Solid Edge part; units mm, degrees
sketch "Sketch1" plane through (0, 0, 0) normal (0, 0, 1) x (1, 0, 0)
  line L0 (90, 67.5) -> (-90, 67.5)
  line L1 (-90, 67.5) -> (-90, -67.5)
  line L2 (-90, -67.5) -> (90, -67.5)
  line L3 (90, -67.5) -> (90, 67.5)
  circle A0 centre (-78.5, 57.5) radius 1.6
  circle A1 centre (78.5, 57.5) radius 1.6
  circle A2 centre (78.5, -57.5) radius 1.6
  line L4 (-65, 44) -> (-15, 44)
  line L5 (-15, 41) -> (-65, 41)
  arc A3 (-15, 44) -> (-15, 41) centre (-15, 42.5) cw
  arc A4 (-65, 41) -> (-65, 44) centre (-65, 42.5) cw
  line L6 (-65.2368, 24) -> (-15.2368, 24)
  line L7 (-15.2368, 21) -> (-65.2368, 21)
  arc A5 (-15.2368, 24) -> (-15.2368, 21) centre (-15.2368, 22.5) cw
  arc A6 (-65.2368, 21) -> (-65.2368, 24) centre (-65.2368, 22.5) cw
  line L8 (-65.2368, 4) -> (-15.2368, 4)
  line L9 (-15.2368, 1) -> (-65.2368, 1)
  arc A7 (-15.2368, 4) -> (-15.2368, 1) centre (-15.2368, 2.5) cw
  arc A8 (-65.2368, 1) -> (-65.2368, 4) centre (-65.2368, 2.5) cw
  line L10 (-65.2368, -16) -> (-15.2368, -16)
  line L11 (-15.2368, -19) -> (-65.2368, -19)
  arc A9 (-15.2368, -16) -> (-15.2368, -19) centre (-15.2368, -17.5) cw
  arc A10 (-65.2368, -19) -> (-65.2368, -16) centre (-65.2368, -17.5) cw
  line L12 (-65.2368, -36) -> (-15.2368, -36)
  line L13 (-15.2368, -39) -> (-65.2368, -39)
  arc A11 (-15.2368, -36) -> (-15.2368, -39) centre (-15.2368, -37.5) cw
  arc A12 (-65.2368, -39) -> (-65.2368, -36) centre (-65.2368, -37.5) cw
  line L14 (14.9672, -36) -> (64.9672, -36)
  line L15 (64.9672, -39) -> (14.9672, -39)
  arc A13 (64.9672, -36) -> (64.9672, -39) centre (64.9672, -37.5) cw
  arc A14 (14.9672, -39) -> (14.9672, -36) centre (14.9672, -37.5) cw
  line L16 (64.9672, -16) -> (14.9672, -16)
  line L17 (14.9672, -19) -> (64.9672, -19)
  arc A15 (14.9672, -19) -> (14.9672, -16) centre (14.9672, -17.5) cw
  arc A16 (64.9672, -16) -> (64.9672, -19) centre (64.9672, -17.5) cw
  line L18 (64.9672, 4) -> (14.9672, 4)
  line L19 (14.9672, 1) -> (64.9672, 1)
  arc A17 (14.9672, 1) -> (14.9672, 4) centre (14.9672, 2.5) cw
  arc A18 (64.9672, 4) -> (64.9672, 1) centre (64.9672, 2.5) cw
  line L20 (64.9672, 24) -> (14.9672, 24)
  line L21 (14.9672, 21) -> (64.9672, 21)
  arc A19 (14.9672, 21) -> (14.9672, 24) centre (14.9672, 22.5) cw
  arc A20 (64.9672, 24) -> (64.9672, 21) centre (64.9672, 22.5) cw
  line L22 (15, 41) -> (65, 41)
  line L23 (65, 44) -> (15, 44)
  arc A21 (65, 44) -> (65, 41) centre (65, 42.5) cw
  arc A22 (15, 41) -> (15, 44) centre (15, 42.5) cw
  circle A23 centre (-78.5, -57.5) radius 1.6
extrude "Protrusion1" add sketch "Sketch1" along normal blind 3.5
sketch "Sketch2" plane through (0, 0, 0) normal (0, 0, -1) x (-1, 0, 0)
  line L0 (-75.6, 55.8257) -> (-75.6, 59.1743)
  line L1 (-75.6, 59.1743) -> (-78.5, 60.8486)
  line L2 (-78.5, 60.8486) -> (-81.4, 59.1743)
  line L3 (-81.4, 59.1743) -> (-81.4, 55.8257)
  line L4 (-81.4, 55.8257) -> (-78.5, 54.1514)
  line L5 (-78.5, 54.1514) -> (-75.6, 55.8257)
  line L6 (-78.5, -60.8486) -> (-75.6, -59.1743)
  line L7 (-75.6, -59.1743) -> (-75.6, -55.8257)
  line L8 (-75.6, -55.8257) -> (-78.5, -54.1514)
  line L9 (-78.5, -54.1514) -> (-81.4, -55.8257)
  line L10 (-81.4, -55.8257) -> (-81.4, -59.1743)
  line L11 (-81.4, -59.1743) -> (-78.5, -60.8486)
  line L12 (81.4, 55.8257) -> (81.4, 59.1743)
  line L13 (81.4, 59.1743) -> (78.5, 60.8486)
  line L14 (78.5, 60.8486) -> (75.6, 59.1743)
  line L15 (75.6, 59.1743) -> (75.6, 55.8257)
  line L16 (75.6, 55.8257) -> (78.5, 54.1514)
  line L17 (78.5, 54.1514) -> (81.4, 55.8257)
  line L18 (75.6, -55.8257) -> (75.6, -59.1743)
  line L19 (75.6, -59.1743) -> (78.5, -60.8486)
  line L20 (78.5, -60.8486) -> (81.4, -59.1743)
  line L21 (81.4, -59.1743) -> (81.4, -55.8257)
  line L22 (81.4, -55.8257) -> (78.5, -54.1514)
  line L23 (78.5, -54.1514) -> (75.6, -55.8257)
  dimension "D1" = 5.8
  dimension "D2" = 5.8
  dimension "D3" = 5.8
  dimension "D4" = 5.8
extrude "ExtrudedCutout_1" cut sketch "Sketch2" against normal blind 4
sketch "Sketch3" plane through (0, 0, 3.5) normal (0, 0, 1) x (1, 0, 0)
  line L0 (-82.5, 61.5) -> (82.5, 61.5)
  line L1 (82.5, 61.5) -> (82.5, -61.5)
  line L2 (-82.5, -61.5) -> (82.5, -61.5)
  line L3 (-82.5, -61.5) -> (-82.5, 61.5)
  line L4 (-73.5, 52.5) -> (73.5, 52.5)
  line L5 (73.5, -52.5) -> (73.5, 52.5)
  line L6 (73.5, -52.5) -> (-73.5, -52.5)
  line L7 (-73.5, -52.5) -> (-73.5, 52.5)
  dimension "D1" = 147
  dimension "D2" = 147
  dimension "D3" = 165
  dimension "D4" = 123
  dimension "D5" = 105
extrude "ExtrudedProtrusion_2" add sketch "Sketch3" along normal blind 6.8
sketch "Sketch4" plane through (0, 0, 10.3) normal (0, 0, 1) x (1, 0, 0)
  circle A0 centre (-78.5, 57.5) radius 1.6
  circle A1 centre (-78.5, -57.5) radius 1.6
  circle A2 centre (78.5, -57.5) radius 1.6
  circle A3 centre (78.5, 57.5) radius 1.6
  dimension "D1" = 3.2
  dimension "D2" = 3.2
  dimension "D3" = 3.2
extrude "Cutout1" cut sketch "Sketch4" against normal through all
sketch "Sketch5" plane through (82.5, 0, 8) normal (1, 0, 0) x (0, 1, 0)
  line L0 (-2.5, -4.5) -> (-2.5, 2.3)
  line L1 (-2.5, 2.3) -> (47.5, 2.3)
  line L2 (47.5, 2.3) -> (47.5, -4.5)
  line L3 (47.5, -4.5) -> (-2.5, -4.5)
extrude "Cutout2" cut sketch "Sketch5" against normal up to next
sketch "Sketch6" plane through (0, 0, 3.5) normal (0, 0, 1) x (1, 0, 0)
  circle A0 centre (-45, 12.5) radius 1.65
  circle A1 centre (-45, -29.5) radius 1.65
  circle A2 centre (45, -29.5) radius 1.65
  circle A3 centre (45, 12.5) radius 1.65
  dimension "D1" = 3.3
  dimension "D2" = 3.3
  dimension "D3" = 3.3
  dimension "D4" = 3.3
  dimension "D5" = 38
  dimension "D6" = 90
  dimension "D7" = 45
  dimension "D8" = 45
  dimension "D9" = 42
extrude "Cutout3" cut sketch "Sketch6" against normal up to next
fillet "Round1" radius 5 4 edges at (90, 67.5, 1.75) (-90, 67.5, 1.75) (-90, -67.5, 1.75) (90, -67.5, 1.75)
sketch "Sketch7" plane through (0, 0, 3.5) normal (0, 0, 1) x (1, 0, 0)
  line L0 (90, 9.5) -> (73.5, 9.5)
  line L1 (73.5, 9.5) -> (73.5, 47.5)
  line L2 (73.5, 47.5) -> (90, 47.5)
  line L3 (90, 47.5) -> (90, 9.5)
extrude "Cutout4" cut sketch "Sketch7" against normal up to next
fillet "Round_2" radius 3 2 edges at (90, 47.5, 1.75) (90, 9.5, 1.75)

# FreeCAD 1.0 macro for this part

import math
import FreeCAD as App
import Part
import Sketcher
Q = App.Units.Quantity


def edges_at(feature, points):
    """Names of the edges that pass closest to the given points."""
    edges = feature.Shape.Edges
    near = lambda p: min(range(len(edges)), key=lambda i: edges[i].distToShape(Part.Vertex(*p))[0])
    return sorted({f"Edge{near(p) + 1}" for p in points})

doc = App.newDocument("Part")
params = doc.addObject("Spreadsheet::Sheet", "Params")
for row, (alias, value) in enumerate([
    ("sketch1_diameter", "3.2 mm"),
    ("sketch1_radius", "1.5 mm"),
    ("sketch1_width", "180 mm"),
    ("sketch1_width2", "50 mm"),
    ("sketch1_height", "135 mm"),
    ("pad1_length", "3.5 mm"),
    ("pocket1_length", "4 mm"),
    ("sketch3_width", "165 mm"),
    ("sketch3_width2", "147 mm"),
    ("sketch3_height", "123 mm"),
    ("sketch3_height2", "105 mm"),
    ("pad2_length", "6.8 mm"),
    ("sketch4_diameter", "3.2 mm"),
    ("sketch5_width", "50 mm"),
    ("sketch5_height", "6.8 mm"),
    ("sketch6_diameter", "3.3 mm"),
    ("pocket4_length", "3.5 mm"),
    ("fillet_radius", "5 mm"),
    ("sketch7_height", "38 mm"),
    ("sketch7_width", "16.5 mm"),
    ("fillet2_radius", "3 mm"),
], start=1):
    params.set(f"A{row}", alias)
    params.set(f"B{row}", "=" + value)
    params.setAlias(f"B{row}", alias)

body = doc.addObject("PartDesign::Body", "Body")

sketch1 = body.newObject("Sketcher::SketchObject", "Sketch")
sketch1.AttachmentSupport = (doc.getObject("XY_Plane"), [""])
sketch1.MapMode = "FlatFace"
sketch1.addGeometry(Part.LineSegment(App.Vector(90, -67.5, 0), App.Vector(90, 67.5, 0)), False)
sketch1.addGeometry(Part.LineSegment(App.Vector(90, 67.5, 0), App.Vector(-90, 67.5, 0)), False)
sketch1.addGeometry(Part.LineSegment(App.Vector(-90, 67.5, 0), App.Vector(-90, -67.5, 0)), False)
sketch1.addGeometry(Part.LineSegment(App.Vector(-90, -67.5, 0), App.Vector(90, -67.5, 0)), False)
sketch1.addGeometry(Part.Circle(App.Vector(-78.5, -57.5, 0), App.Vector(0, 0, 1), 1.6), False)
sketch1.addGeometry(Part.ArcOfCircle(Part.Circle(App.Vector(-65.2, -37.5, 0), App.Vector(0, 0, 1), 1.5), math.radians(90), math.radians(270)), False)
sketch1.addGeometry(Part.LineSegment(App.Vector(-65.2, -36, 0), App.Vector(-15.2, -36, 0)), False)
sketch1.addGeometry(Part.ArcOfCircle(Part.Circle(App.Vector(-15.2, -37.5, 0), App.Vector(0, 0, 1), 1.5), math.radians(-90), math.radians(90)), False)
sketch1.addGeometry(Part.LineSegment(App.Vector(-15.2, -39, 0), App.Vector(-65.2, -39, 0)), False)
sketch1.addGeometry(Part.ArcOfCircle(Part.Circle(App.Vector(-65.2, -17.5, 0), App.Vector(0, 0, 1), 1.5), math.radians(90), math.radians(270)), False)
sketch1.addGeometry(Part.LineSegment(App.Vector(-65.2, -16, 0), App.Vector(-15.2, -16, 0)), False)
sketch1.addGeometry(Part.ArcOfCircle(Part.Circle(App.Vector(-15.2, -17.5, 0), App.Vector(0, 0, 1), 1.5), math.radians(-90), math.radians(90)), False)
sketch1.addGeometry(Part.LineSegment(App.Vector(-15.2, -19, 0), App.Vector(-65.2, -19, 0)), False)
sketch1.addGeometry(Part.ArcOfCircle(Part.Circle(App.Vector(15, -37.5, 0), App.Vector(0, 0, 1), 1.5), math.radians(90), math.radians(270)), False)
sketch1.addGeometry(Part.LineSegment(App.Vector(15, -36, 0), App.Vector(65, -36, 0)), False)
sketch1.addGeometry(Part.ArcOfCircle(Part.Circle(App.Vector(65, -37.5, 0), App.Vector(0, 0, 1), 1.5), math.radians(-90), math.radians(90)), False)
sketch1.addGeometry(Part.LineSegment(App.Vector(65, -39, 0), App.Vector(15, -39, 0)), False)
sketch1.addGeometry(Part.Circle(App.Vector(78.5, -57.5, 0), App.Vector(0, 0, 1), 1.6), False)
sketch1.addGeometry(Part.LineSegment(App.Vector(15, -16, 0), App.Vector(65, -16, 0)), False)
sketch1.addGeometry(Part.ArcOfCircle(Part.Circle(App.Vector(65, -17.5, 0), App.Vector(0, 0, 1), 1.5), math.radians(-90), math.radians(90)), False)
sketch1.addGeometry(Part.LineSegment(App.Vector(65, -19, 0), App.Vector(15, -19, 0)), False)
sketch1.addGeometry(Part.ArcOfCircle(Part.Circle(App.Vector(15, -17.5, 0), App.Vector(0, 0, 1), 1.5), math.radians(90), math.radians(270)), False)
sketch1.addGeometry(Part.ArcOfCircle(Part.Circle(App.Vector(-65.2, 2.5, 0), App.Vector(0, 0, 1), 1.5), math.radians(90), math.radians(270)), False)
sketch1.addGeometry(Part.LineSegment(App.Vector(-65.2, 4, 0), App.Vector(-15.2, 4, 0)), False)
sketch1.addGeometry(Part.ArcOfCircle(Part.Circle(App.Vector(-15.2, 2.5, 0), App.Vector(0, 0, 1), 1.5), math.radians(-90), math.radians(90)), False)
sketch1.addGeometry(Part.LineSegment(App.Vector(-15.2, 1, 0), App.Vector(-65.2, 1, 0)), False)
sketch1.addGeometry(Part.ArcOfCircle(Part.Circle(App.Vector(-65.2, 22.5, 0), App.Vector(0, 0, 1), 1.5), math.radians(90), math.radians(270)), False)
sketch1.addGeometry(Part.LineSegment(App.Vector(-65.2, 24, 0), App.Vector(-15.2, 24, 0)), False)
sketch1.addGeometry(Part.ArcOfCircle(Part.Circle(App.Vector(-15.2, 22.5, 0), App.Vector(0, 0, 1), 1.5), math.radians(-90), math.radians(90)), False)
sketch1.addGeometry(Part.LineSegment(App.Vector(-15.2, 21, 0), App.Vector(-65.2, 21, 0)), False)
sketch1.addGeometry(Part.Circle(App.Vector(-78.5, 57.5, 0), App.Vector(0, 0, 1), 1.6), False)
sketch1.addGeometry(Part.ArcOfCircle(Part.Circle(App.Vector(-65, 42.5, 0), App.Vector(0, 0, 1), 1.5), math.radians(90), math.radians(270)), False)
sketch1.addGeometry(Part.LineSegment(App.Vector(-65, 44, 0), App.Vector(-15, 44, 0)), False)
sketch1.addGeometry(Part.ArcOfCircle(Part.Circle(App.Vector(-15, 42.5, 0), App.Vector(0, 0, 1), 1.5), math.radians(-90), math.radians(90)), False)
sketch1.addGeometry(Part.LineSegment(App.Vector(-15, 41, 0), App.Vector(-65, 41, 0)), False)
sketch1.addGeometry(Part.LineSegment(App.Vector(15, 4, 0), App.Vector(65, 4, 0)), False)
sketch1.addGeometry(Part.ArcOfCircle(Part.Circle(App.Vector(65, 2.5, 0), App.Vector(0, 0, 1), 1.5), math.radians(-90), math.radians(90)), False)
sketch1.addGeometry(Part.LineSegment(App.Vector(65, 1, 0), App.Vector(15, 1, 0)), False)
sketch1.addGeometry(Part.ArcOfCircle(Part.Circle(App.Vector(15, 2.5, 0), App.Vector(0, 0, 1), 1.5), math.radians(90), math.radians(270)), False)
sketch1.addGeometry(Part.LineSegment(App.Vector(15, 24, 0), App.Vector(65, 24, 0)), False)
sketch1.addGeometry(Part.ArcOfCircle(Part.Circle(App.Vector(65, 22.5, 0), App.Vector(0, 0, 1), 1.5), math.radians(-90), math.radians(90)), False)
sketch1.addGeometry(Part.LineSegment(App.Vector(65, 21, 0), App.Vector(15, 21, 0)), False)
sketch1.addGeometry(Part.ArcOfCircle(Part.Circle(App.Vector(15, 22.5, 0), App.Vector(0, 0, 1), 1.5), math.radians(90), math.radians(270)), False)
sketch1.addGeometry(Part.LineSegment(App.Vector(65, 41, 0), App.Vector(15, 41, 0)), False)
sketch1.addGeometry(Part.ArcOfCircle(Part.Circle(App.Vector(15, 42.5, 0), App.Vector(0, 0, 1), 1.5), math.radians(90), math.radians(270)), False)
sketch1.addGeometry(Part.LineSegment(App.Vector(15, 44, 0), App.Vector(65, 44, 0)), False)
sketch1.addGeometry(Part.ArcOfCircle(Part.Circle(App.Vector(65, 42.5, 0), App.Vector(0, 0, 1), 1.5), math.radians(-90), math.radians(90)), False)
sketch1.addGeometry(Part.Circle(App.Vector(78.5, 57.5, 0), App.Vector(0, 0, 1), 1.6), False)
sketch1.addConstraint(Sketcher.Constraint("Coincident", 0, 2, 1, 1))
sketch1.addConstraint(Sketcher.Constraint("Coincident", 1, 2, 2, 1))
sketch1.addConstraint(Sketcher.Constraint("Coincident", 2, 2, 3, 1))
sketch1.addConstraint(Sketcher.Constraint("Coincident", 3, 2, 0, 1))
sketch1.addConstraint(Sketcher.Constraint("Tangent", 5, 1, 6, 1))
sketch1.addConstraint(Sketcher.Constraint("Tangent", 6, 2, 7, 2))
sketch1.addConstraint(Sketcher.Constraint("Tangent", 7, 1, 8, 1))
sketch1.addConstraint(Sketcher.Constraint("Tangent", 8, 2, 5, 2))
sketch1.addConstraint(Sketcher.Constraint("Tangent", 9, 1, 10, 1))
sketch1.addConstraint(Sketcher.Constraint("Tangent", 10, 2, 11, 2))
sketch1.addConstraint(Sketcher.Constraint("Tangent", 11, 1, 12, 1))
sketch1.addConstraint(Sketcher.Constraint("Tangent", 12, 2, 9, 2))
sketch1.addConstraint(Sketcher.Constraint("Tangent", 13, 1, 14, 1))
sketch1.addConstraint(Sketcher.Constraint("Tangent", 14, 2, 15, 2))
sketch1.addConstraint(Sketcher.Constraint("Tangent", 15, 1, 16, 1))
sketch1.addConstraint(Sketcher.Constraint("Tangent", 16, 2, 13, 2))
sketch1.addConstraint(Sketcher.Constraint("Tangent", 18, 2, 19, 2))
sketch1.addConstraint(Sketcher.Constraint("Tangent", 19, 1, 20, 1))
sketch1.addConstraint(Sketcher.Constraint("Tangent", 20, 2, 21, 2))
sketch1.addConstraint(Sketcher.Constraint("Tangent", 21, 1, 18, 1))
sketch1.addConstraint(Sketcher.Constraint("Tangent", 22, 1, 23, 1))
sketch1.addConstraint(Sketcher.Constraint("Tangent", 23, 2, 24, 2))
sketch1.addConstraint(Sketcher.Constraint("Tangent", 24, 1, 25, 1))
sketch1.addConstraint(Sketcher.Constraint("Tangent", 25, 2, 22, 2))
sketch1.addConstraint(Sketcher.Constraint("Tangent", 26, 1, 27, 1))
sketch1.addConstraint(Sketcher.Constraint("Tangent", 27, 2, 28, 2))
sketch1.addConstraint(Sketcher.Constraint("Tangent", 28, 1, 29, 1))
sketch1.addConstraint(Sketcher.Constraint("Tangent", 29, 2, 26, 2))
sketch1.addConstraint(Sketcher.Constraint("Tangent", 31, 1, 32, 1))
sketch1.addConstraint(Sketcher.Constraint("Tangent", 32, 2, 33, 2))
sketch1.addConstraint(Sketcher.Constraint("Tangent", 33, 1, 34, 1))
sketch1.addConstraint(Sketcher.Constraint("Tangent", 34, 2, 31, 2))
sketch1.addConstraint(Sketcher.Constraint("Tangent", 35, 2, 36, 2))
sketch1.addConstraint(Sketcher.Constraint("Tangent", 36, 1, 37, 1))
sketch1.addConstraint(Sketcher.Constraint("Tangent", 37, 2, 38, 2))
sketch1.addConstraint(Sketcher.Constraint("Tangent", 38, 1, 35, 1))
sketch1.addConstraint(Sketcher.Constraint("Tangent", 39, 2, 40, 2))
sketch1.addConstraint(Sketcher.Constraint("Tangent", 40, 1, 41, 1))
sketch1.addConstraint(Sketcher.Constraint("Tangent", 41, 2, 42, 2))
sketch1.addConstraint(Sketcher.Constraint("Tangent", 42, 1, 39, 1))
sketch1.addConstraint(Sketcher.Constraint("Tangent", 43, 2, 44, 2))
sketch1.addConstraint(Sketcher.Constraint("Tangent", 44, 1, 45, 1))
sketch1.addConstraint(Sketcher.Constraint("Tangent", 45, 2, 46, 2))
sketch1.addConstraint(Sketcher.Constraint("Tangent", 46, 1, 43, 1))
sketch1.addConstraint(Sketcher.Constraint("Vertical", 0))
sketch1.addConstraint(Sketcher.Constraint("Horizontal", 1))
sketch1.addConstraint(Sketcher.Constraint("Vertical", 2))
sketch1.addConstraint(Sketcher.Constraint("Horizontal", 3))
sketch1.addConstraint(Sketcher.Constraint("Horizontal", 6))
sketch1.addConstraint(Sketcher.Constraint("Horizontal", 8))
sketch1.addConstraint(Sketcher.Constraint("Horizontal", 10))
sketch1.addConstraint(Sketcher.Constraint("Horizontal", 12))
sketch1.addConstraint(Sketcher.Constraint("Horizontal", 14))
sketch1.addConstraint(Sketcher.Constraint("Horizontal", 16))
sketch1.addConstraint(Sketcher.Constraint("Horizontal", 18))
sketch1.addConstraint(Sketcher.Constraint("Horizontal", 20))
sketch1.addConstraint(Sketcher.Constraint("Horizontal", 23))
sketch1.addConstraint(Sketcher.Constraint("Horizontal", 25))
sketch1.addConstraint(Sketcher.Constraint("Horizontal", 27))
sketch1.addConstraint(Sketcher.Constraint("Horizontal", 29))
sketch1.addConstraint(Sketcher.Constraint("Horizontal", 32))
sketch1.addConstraint(Sketcher.Constraint("Horizontal", 34))
sketch1.addConstraint(Sketcher.Constraint("Horizontal", 35))
sketch1.addConstraint(Sketcher.Constraint("Horizontal", 37))
sketch1.addConstraint(Sketcher.Constraint("Horizontal", 39))
sketch1.addConstraint(Sketcher.Constraint("Horizontal", 41))
sketch1.addConstraint(Sketcher.Constraint("Horizontal", 43))
sketch1.addConstraint(Sketcher.Constraint("Horizontal", 45))
sketch1.addConstraint(Sketcher.Constraint("Equal", 7, 9))
sketch1.addConstraint(Sketcher.Constraint("Equal", 11, 13))
sketch1.addConstraint(Sketcher.Constraint("Equal", 4, 17))
sketch1.addConstraint(Sketcher.Constraint("Equal", 15, 19))
sketch1.addConstraint(Sketcher.Constraint("Equal", 21, 22))
sketch1.addConstraint(Sketcher.Constraint("Equal", 24, 26))
sketch1.addConstraint(Sketcher.Constraint("Equal", 17, 30))
sketch1.addConstraint(Sketcher.Constraint("Equal", 28, 31))
sketch1.addConstraint(Sketcher.Constraint("Equal", 33, 36))
sketch1.addConstraint(Sketcher.Constraint("Equal", 38, 40))
sketch1.addConstraint(Sketcher.Constraint("Equal", 42, 44))
sketch1.addConstraint(Sketcher.Constraint("Equal", 30, 47))
sketch1.addConstraint(Sketcher.Constraint("Symmetric", 17, 3, 30, 3, -1, 1))
sketch1.addConstraint(Sketcher.Constraint("Symmetric", 4, 3, 47, 3, -1, 1))
sketch1.addConstraint(Sketcher.Constraint("Symmetric", 0, 2, 2, 2, -1, 1))
sketch1.addConstraint(Sketcher.Constraint("Symmetric", 4, 3, 17, 3, -2))
sketch1.addConstraint(Sketcher.Constraint("Symmetric", 33, 3, 44, 3, -2))
sketch1.addConstraint(Sketcher.Constraint("Horizontal", 7, 3, 13, 3))
sketch1.addConstraint(Sketcher.Constraint("Horizontal", 11, 3, 19, 3))
sketch1.addConstraint(Sketcher.Constraint("Horizontal", 24, 3, 36, 3))
sketch1.addConstraint(Sketcher.Constraint("Horizontal", 28, 3, 40, 3))
sketch1.addConstraint(Sketcher.Constraint("Vertical", 5, 3, 9, 3))
sketch1.addConstraint(Sketcher.Constraint("Vertical", 7, 3, 11, 3))
sketch1.addConstraint(Sketcher.Constraint("Vertical", 15, 3, 19, 3))
sketch1.addConstraint(Sketcher.Constraint("Vertical", 13, 3, 21, 3))
sketch1.addConstraint(Sketcher.Constraint("Vertical", 9, 3, 22, 3))
sketch1.addConstraint(Sketcher.Constraint("Vertical", 11, 3, 24, 3))
sketch1.addConstraint(Sketcher.Constraint("Vertical", 22, 3, 26, 3))
sketch1.addConstraint(Sketcher.Constraint("Vertical", 24, 3, 28, 3))
sketch1.addConstraint(Sketcher.Constraint("Vertical", 19, 3, 36, 3))
sketch1.addConstraint(Sketcher.Constraint("Vertical", 21, 3, 38, 3))
sketch1.addConstraint(Sketcher.Constraint("Vertical", 36, 3, 40, 3))
sketch1.addConstraint(Sketcher.Constraint("Vertical", 38, 3, 42, 3))
sketch1.addConstraint(Sketcher.Constraint("Equal", 12, 14))
sketch1.addConstraint(Sketcher.Constraint("Equal", 29, 32))
sketch1.addConstraint(Sketcher.Constraint("Equal", 41, 43))
sketch1.addConstraint(Sketcher.Constraint("Diameter", 4, 3.2))
sketch1.addConstraint(Sketcher.Constraint("Radius", 5, 1.5))
sketch1.addConstraint(Sketcher.Constraint("DistanceX", 1, 2, 1, 1, 180.0))
sketch1.addConstraint(Sketcher.Constraint("DistanceX", 6, 1, 6, 2, 50.0))
sketch1.addConstraint(Sketcher.Constraint("DistanceY", 0, 1, 0, 2, 135.0))
sketch1.addConstraint(Sketcher.Constraint("DistanceX", 31, 3, -1, 1, 65.0))
sketch1.addConstraint(Sketcher.Constraint("DistanceY", 5, 1, -1, 1, 36.0))
sketch1.addConstraint(Sketcher.Constraint("DistanceY", 9, 1, -1, 1, 16.0))
sketch1.addConstraint(Sketcher.Constraint("DistanceY", -1, 1, 22, 1, 4.0))
sketch1.addConstraint(Sketcher.Constraint("DistanceY", -1, 1, 26, 1, 24.0))
sketch1.addConstraint(Sketcher.Constraint("DistanceY", -1, 1, 31, 1, 44.0))
sketch1.addConstraint(Sketcher.Constraint("DistanceX", 4, 3, -1, 1, 78.5))
sketch1.addConstraint(Sketcher.Constraint("DistanceY", 4, 3, -1, 1, 57.5))
sketch1.addConstraint(Sketcher.Constraint("DistanceX", 5, 3, -1, 1, 65.2368))
sketch1.addConstraint(Sketcher.Constraint("DistanceX", -1, 1, 13, 3, 14.9672))
sketch1.setExpression("Constraints[104]", "Params.sketch1_diameter")
sketch1.setExpression("Constraints[105]", "Params.sketch1_radius")
sketch1.setExpression("Constraints[106]", "Params.sketch1_width")
sketch1.setExpression("Constraints[107]", "Params.sketch1_width2")
sketch1.setExpression("Constraints[108]", "Params.sketch1_height")
pad1 = body.newObject("PartDesign::Pad", "Pad")
pad1.Profile = sketch1
pad1.setExpression("Length", "Params.pad1_length")

sketch2 = body.newObject("Sketcher::SketchObject", "Sketch001")
sketch2.AttachmentSupport = (doc.getObject("XY_Plane"), [""])
sketch2.MapMode = "FlatFace"
sketch2.addGeometry(Part.LineSegment(App.Vector(78.5, 54.2, 0), App.Vector(75.6, 55.8, 0)), False)
sketch2.addGeometry(Part.LineSegment(App.Vector(75.6, 55.8, 0), App.Vector(75.6, 59.2, 0)), False)
sketch2.addGeometry(Part.LineSegment(App.Vector(75.6, 59.2, 0), App.Vector(78.5, 60.8, 0)), False)
sketch2.addGeometry(Part.LineSegment(App.Vector(78.5, 60.8, 0), App.Vector(81.4, 59.2, 0)), False)
sketch2.addGeometry(Part.LineSegment(App.Vector(81.4, 59.2, 0), App.Vector(81.4, 55.8, 0)), False)
sketch2.addGeometry(Part.LineSegment(App.Vector(81.4, 55.8, 0), App.Vector(78.5, 54.2, 0)), False)
sketch2.addGeometry(Part.LineSegment(App.Vector(81.4, -59.2, 0), App.Vector(78.5, -60.8, 0)), False)
sketch2.addGeometry(Part.LineSegment(App.Vector(78.5, -60.8, 0), App.Vector(75.6, -59.2, 0)), False)
sketch2.addGeometry(Part.LineSegment(App.Vector(75.6, -59.2, 0), App.Vector(75.6, -55.8, 0)), False)
sketch2.addGeometry(Part.LineSegment(App.Vector(75.6, -55.8, 0), App.Vector(78.5, -54.2, 0)), False)
sketch2.addGeometry(Part.LineSegment(App.Vector(78.5, -54.2, 0), App.Vector(81.4, -55.8, 0)), False)
sketch2.addGeometry(Part.LineSegment(App.Vector(81.4, -55.8, 0), App.Vector(81.4, -59.2, 0)), False)
sketch2.addGeometry(Part.LineSegment(App.Vector(-78.5, 54.2, 0), App.Vector(-81.4, 55.8, 0)), False)
sketch2.addGeometry(Part.LineSegment(App.Vector(-81.4, 55.8, 0), App.Vector(-81.4, 59.2, 0)), False)
sketch2.addGeometry(Part.LineSegment(App.Vector(-81.4, 59.2, 0), App.Vector(-78.5, 60.8, 0)), False)
sketch2.addGeometry(Part.LineSegment(App.Vector(-78.5, 60.8, 0), App.Vector(-75.6, 59.2, 0)), False)
sketch2.addGeometry(Part.LineSegment(App.Vector(-75.6, 59.2, 0), App.Vector(-75.6, 55.8, 0)), False)
sketch2.addGeometry(Part.LineSegment(App.Vector(-75.6, 55.8, 0), App.Vector(-78.5, 54.2, 0)), False)
sketch2.addGeometry(Part.LineSegment(App.Vector(-78.5, -54.2, 0), App.Vector(-75.6, -55.8, 0)), False)
sketch2.addGeometry(Part.LineSegment(App.Vector(-75.6, -55.8, 0), App.Vector(-75.6, -59.2, 0)), False)
sketch2.addGeometry(Part.LineSegment(App.Vector(-75.6, -59.2, 0), App.Vector(-78.5, -60.8, 0)), False)
sketch2.addGeometry(Part.LineSegment(App.Vector(-78.5, -60.8, 0), App.Vector(-81.4, -59.2, 0)), False)
sketch2.addGeometry(Part.LineSegment(App.Vector(-81.4, -59.2, 0), App.Vector(-81.4, -55.8, 0)), False)
sketch2.addGeometry(Part.LineSegment(App.Vector(-81.4, -55.8, 0), App.Vector(-78.5, -54.2, 0)), False)
sketch2.addConstraint(Sketcher.Constraint("Coincident", 0, 2, 1, 1))
sketch2.addConstraint(Sketcher.Constraint("Coincident", 1, 2, 2, 1))
sketch2.addConstraint(Sketcher.Constraint("Coincident", 2, 2, 3, 1))
sketch2.addConstraint(Sketcher.Constraint("Coincident", 3, 2, 4, 1))
sketch2.addConstraint(Sketcher.Constraint("Coincident", 4, 2, 5, 1))
sketch2.addConstraint(Sketcher.Constraint("Coincident", 5, 2, 0, 1))
sketch2.addConstraint(Sketcher.Constraint("Coincident", 6, 2, 7, 1))
sketch2.addConstraint(Sketcher.Constraint("Coincident", 7, 2, 8, 1))
sketch2.addConstraint(Sketcher.Constraint("Coincident", 8, 2, 9, 1))
sketch2.addConstraint(Sketcher.Constraint("Coincident", 9, 2, 10, 1))
sketch2.addConstraint(Sketcher.Constraint("Coincident", 10, 2, 11, 1))
sketch2.addConstraint(Sketcher.Constraint("Coincident", 11, 2, 6, 1))
sketch2.addConstraint(Sketcher.Constraint("Coincident", 12, 2, 13, 1))
sketch2.addConstraint(Sketcher.Constraint("Coincident", 13, 2, 14, 1))
sketch2.addConstraint(Sketcher.Constraint("Coincident", 14, 2, 15, 1))
sketch2.addConstraint(Sketcher.Constraint("Coincident", 15, 2, 16, 1))
sketch2.addConstraint(Sketcher.Constraint("Coincident", 16, 2, 17, 1))
sketch2.addConstraint(Sketcher.Constraint("Coincident", 17, 2, 12, 1))
sketch2.addConstraint(Sketcher.Constraint("Coincident", 18, 2, 19, 1))
sketch2.addConstraint(Sketcher.Constraint("Coincident", 19, 2, 20, 1))
sketch2.addConstraint(Sketcher.Constraint("Coincident", 20, 2, 21, 1))
sketch2.addConstraint(Sketcher.Constraint("Coincident", 21, 2, 22, 1))
sketch2.addConstraint(Sketcher.Constraint("Coincident", 22, 2, 23, 1))
sketch2.addConstraint(Sketcher.Constraint("Coincident", 23, 2, 18, 1))
sketch2.addConstraint(Sketcher.Constraint("Vertical", 1))
sketch2.addConstraint(Sketcher.Constraint("Vertical", 4))
sketch2.addConstraint(Sketcher.Constraint("Vertical", 8))
sketch2.addConstraint(Sketcher.Constraint("Vertical", 11))
sketch2.addConstraint(Sketcher.Constraint("Vertical", 13))
sketch2.addConstraint(Sketcher.Constraint("Vertical", 16))
sketch2.addConstraint(Sketcher.Constraint("Vertical", 19))
sketch2.addConstraint(Sketcher.Constraint("Vertical", 22))
sketch2.addConstraint(Sketcher.Constraint("Symmetric", 10, 2, 12, 2, -1, 1))
sketch2.addConstraint(Sketcher.Constraint("Symmetric", 6, 2, 14, 2, -1, 1))
sketch2.addConstraint(Sketcher.Constraint("Symmetric", 7, 2, 15, 2, -1, 1))
sketch2.addConstraint(Sketcher.Constraint("Symmetric", 9, 2, 17, 2, -1, 1))
sketch2.addConstraint(Sketcher.Constraint("Symmetric", 0, 2, 18, 2, -1, 1))
sketch2.addConstraint(Sketcher.Constraint("Symmetric", 2, 2, 20, 2, -1, 1))
sketch2.addConstraint(Sketcher.Constraint("Symmetric", 3, 2, 21, 2, -1, 1))
sketch2.addConstraint(Sketcher.Constraint("Symmetric", 5, 2, 23, 2, -1, 1))
sketch2.addConstraint(Sketcher.Constraint("Symmetric", 4, 2, 12, 2, -2))
sketch2.addConstraint(Sketcher.Constraint("Symmetric", 2, 2, 14, 2, -2))
sketch2.addConstraint(Sketcher.Constraint("Symmetric", 1, 2, 15, 2, -2))
sketch2.addConstraint(Sketcher.Constraint("Symmetric", 5, 2, 17, 2, -2))
sketch2.addConstraint(Sketcher.Constraint("Parallel", 0, 3))
sketch2.addConstraint(Sketcher.Constraint("Parallel", 2, 5))
sketch2.addConstraint(Sketcher.Constraint("Parallel", 5, 6))
sketch2.addConstraint(Sketcher.Constraint("Parallel", 3, 7))
sketch2.addConstraint(Sketcher.Constraint("Parallel", 6, 9))
sketch2.addConstraint(Sketcher.Constraint("Parallel", 9, 14))
sketch2.addConstraint(Sketcher.Constraint("Parallel", 14, 17))
sketch2.addConstraint(Sketcher.Constraint("Parallel", 17, 20))
sketch2.addConstraint(Sketcher.Constraint("Parallel", 20, 23))
sketch2.addConstraint(Sketcher.Constraint("Horizontal", 1, 2, 3, 2))
sketch2.addConstraint(Sketcher.Constraint("Horizontal", 0, 2, 4, 2))
sketch2.addConstraint(Sketcher.Constraint("Angle", 0, Q("150.0002 deg")))
sketch2.addConstraint(Sketcher.Constraint("DistanceY", 6, 2, 5, 2, 115.0))
sketch2.addConstraint(Sketcher.Constraint("DistanceX", 12, 2, 0, 2, 157.0))
sketch2.addConstraint(Sketcher.Constraint("DistanceX", -1, 1, 0, 2, 75.6))
sketch2.addConstraint(Sketcher.Constraint("DistanceY", 1, 1, 1, 2, 3.3486))
pocket1 = body.newObject("PartDesign::Pocket", "Pocket")
pocket1.Profile = sketch2
pocket1.setExpression("Length", "Params.pocket1_length")
pocket1.Reversed = True

sketch3 = body.newObject("Sketcher::SketchObject", "Sketch002")
sketch3.AttachmentSupport = (doc.getObject("XY_Plane"), [""])
sketch3.MapMode = "FlatFace"
sketch3.AttachmentOffset = App.Placement(App.Vector(0, 0, 3.5), App.Rotation())
sketch3.addGeometry(Part.LineSegment(App.Vector(82, 62, 0), App.Vector(-82, 62, 0)), False)
sketch3.addGeometry(Part.LineSegment(App.Vector(-82, 62, 0), App.Vector(-82, -62, 0)), False)
sketch3.addGeometry(Part.LineSegment(App.Vector(-82, -62, 0), App.Vector(82, -62, 0)), False)
sketch3.addGeometry(Part.LineSegment(App.Vector(82, -62, 0), App.Vector(82, 62, 0)), False)
sketch3.addGeometry(Part.LineSegment(App.Vector(-74, -52, 0), App.Vector(-74, 52, 0)), False)
sketch3.addGeometry(Part.LineSegment(App.Vector(-74, 52, 0), App.Vector(74, 52, 0)), False)
sketch3.addGeometry(Part.LineSegment(App.Vector(74, 52, 0), App.Vector(74, -52, 0)), False)
sketch3.addGeometry(Part.LineSegment(App.Vector(74, -52, 0), App.Vector(-74, -52, 0)), False)
sketch3.addConstraint(Sketcher.Constraint("Coincident", 0, 2, 1, 1))
sketch3.addConstraint(Sketcher.Constraint("Coincident", 1, 2, 2, 1))
sketch3.addConstraint(Sketcher.Constraint("Coincident", 2, 2, 3, 1))
sketch3.addConstraint(Sketcher.Constraint("Coincident", 3, 2, 0, 1))
sketch3.addConstraint(Sketcher.Constraint("Coincident", 4, 2, 5, 1))
sketch3.addConstraint(Sketcher.Constraint("Coincident", 5, 2, 6, 1))
sketch3.addConstraint(Sketcher.Constraint("Coincident", 6, 2, 7, 1))
sketch3.addConstraint(Sketcher.Constraint("Coincident", 7, 2, 4, 1))
sketch3.addConstraint(Sketcher.Constraint("Horizontal", 0))
sketch3.addConstraint(Sketcher.Constraint("Vertical", 1))
sketch3.addConstraint(Sketcher.Constraint("Horizontal", 2))
sketch3.addConstraint(Sketcher.Constraint("Vertical", 3))
sketch3.addConstraint(Sketcher.Constraint("Vertical", 4))
sketch3.addConstraint(Sketcher.Constraint("Horizontal", 5))
sketch3.addConstraint(Sketcher.Constraint("Vertical", 6))
sketch3.addConstraint(Sketcher.Constraint("Horizontal", 7))
sketch3.addConstraint(Sketcher.Constraint("Symmetric", 0, 2, 2, 2, -1, 1))
sketch3.addConstraint(Sketcher.Constraint("Symmetric", 4, 2, 6, 2, -1, 1))
sketch3.addConstraint(Sketcher.Constraint("DistanceX", 0, 2, 0, 1, 165.0))
sketch3.addConstraint(Sketcher.Constraint("DistanceX", 5, 1, 5, 2, 147.0))
sketch3.addConstraint(Sketcher.Constraint("DistanceY", 1, 2, 1, 1, 123.0))
sketch3.addConstraint(Sketcher.Constraint("DistanceY", 4, 1, 4, 2, 105.0))
sketch3.setExpression("Constraints[18]", "Params.sketch3_width")
sketch3.setExpression("Constraints[19]", "Params.sketch3_width2")
sketch3.setExpression("Constraints[20]", "Params.sketch3_height")
sketch3.setExpression("Constraints[21]", "Params.sketch3_height2")
pad2 = body.newObject("PartDesign::Pad", "Pad001")
pad2.Profile = sketch3
pad2.setExpression("Length", "Params.pad2_length")

sketch4 = body.newObject("Sketcher::SketchObject", "Sketch003")
sketch4.AttachmentSupport = (doc.getObject("XY_Plane"), [""])
sketch4.MapMode = "FlatFace"
sketch4.AttachmentOffset = App.Placement(App.Vector(0, 0, 10.3), App.Rotation())
sketch4.addGeometry(Part.Circle(App.Vector(-78.5, 57.5, 0), App.Vector(0, 0, 1), 1.6), False)
sketch4.addGeometry(Part.Circle(App.Vector(-78.5, -57.5, 0), App.Vector(0, 0, 1), 1.6), False)
sketch4.addGeometry(Part.Circle(App.Vector(78.5, -57.5, 0), App.Vector(0, 0, 1), 1.6), False)
sketch4.addGeometry(Part.Circle(App.Vector(78.5, 57.5, 0), App.Vector(0, 0, 1), 1.6), False)
sketch4.addConstraint(Sketcher.Constraint("Equal", 0, 1))
sketch4.addConstraint(Sketcher.Constraint("Equal", 1, 2))
sketch4.addConstraint(Sketcher.Constraint("Equal", 2, 3))
sketch4.addConstraint(Sketcher.Constraint("Symmetric", 0, 3, 2, 3, -1, 1))
sketch4.addConstraint(Sketcher.Constraint("Symmetric", 1, 3, 3, 3, -1, 1))
sketch4.addConstraint(Sketcher.Constraint("Symmetric", 1, 3, 2, 3, -2))
sketch4.addConstraint(Sketcher.Constraint("Diameter", 0, 3.2))
sketch4.addConstraint(Sketcher.Constraint("DistanceY", 1, 3, 0, 3, 115.0))
sketch4.addConstraint(Sketcher.Constraint("DistanceX", 1, 3, 2, 3, 157.0))
sketch4.setExpression("Constraints[6]", "Params.sketch4_diameter")
pocket2 = body.newObject("PartDesign::Pocket", "Pocket001")
pocket2.Profile = sketch4
pocket2.Type = "ThroughAll"

sketch5 = body.newObject("Sketcher::SketchObject", "Sketch004")
sketch5.AttachmentSupport = (doc.getObject("YZ_Plane"), [""])
sketch5.MapMode = "FlatFace"
sketch5.AttachmentOffset = App.Placement(App.Vector(0, 0, 82.5), App.Rotation())
sketch5.addGeometry(Part.LineSegment(App.Vector(-2, 10, 0), App.Vector(-2, 4, 0)), False)
sketch5.addGeometry(Part.LineSegment(App.Vector(-2, 4, 0), App.Vector(48, 4, 0)), False)
sketch5.addGeometry(Part.LineSegment(App.Vector(48, 4, 0), App.Vector(48, 10, 0)), False)
sketch5.addGeometry(Part.LineSegment(App.Vector(48, 10, 0), App.Vector(-2, 10, 0)), False)
sketch5.addConstraint(Sketcher.Constraint("Coincident", 0, 2, 1, 1))
sketch5.addConstraint(Sketcher.Constraint("Coincident", 1, 2, 2, 1))
sketch5.addConstraint(Sketcher.Constraint("Coincident", 2, 2, 3, 1))
sketch5.addConstraint(Sketcher.Constraint("Coincident", 3, 2, 0, 1))
sketch5.addConstraint(Sketcher.Constraint("Vertical", 0))
sketch5.addConstraint(Sketcher.Constraint("Horizontal", 1))
sketch5.addConstraint(Sketcher.Constraint("Vertical", 2))
sketch5.addConstraint(Sketcher.Constraint("Horizontal", 3))
sketch5.addConstraint(Sketcher.Constraint("DistanceX", 1, 1, 1, 2, 50.0))
sketch5.addConstraint(Sketcher.Constraint("DistanceY", 0, 2, 0, 1, 6.8))
sketch5.addConstraint(Sketcher.Constraint("DistanceX", 0, 2, -1, 1, 2.5))
sketch5.addConstraint(Sketcher.Constraint("DistanceY", -1, 1, 0, 2, 3.5))
sketch5.setExpression("Constraints[8]", "Params.sketch5_width")
sketch5.setExpression("Constraints[9]", "Params.sketch5_height")
pocket3 = body.newObject("PartDesign::Pocket", "Pocket002")
pocket3.Profile = sketch5
pocket3.Type = "UpToFirst"

sketch6 = body.newObject("Sketcher::SketchObject", "Sketch005")
sketch6.AttachmentSupport = (doc.getObject("XY_Plane"), [""])
sketch6.MapMode = "FlatFace"
sketch6.AttachmentOffset = App.Placement(App.Vector(0, 0, 3.5), App.Rotation())
sketch6.addGeometry(Part.Circle(App.Vector(-45, 12.5, 0), App.Vector(0, 0, 1), 1.6), False)
sketch6.addGeometry(Part.Circle(App.Vector(-45, -29.5, 0), App.Vector(0, 0, 1), 1.6), False)
sketch6.addGeometry(Part.Circle(App.Vector(45, -29.5, 0), App.Vector(0, 0, 1), 1.6), False)
sketch6.addGeometry(Part.Circle(App.Vector(45, 12.5, 0), App.Vector(0, 0, 1), 1.6), False)
sketch6.addConstraint(Sketcher.Constraint("Equal", 0, 1))
sketch6.addConstraint(Sketcher.Constraint("Equal", 1, 2))
sketch6.addConstraint(Sketcher.Constraint("Equal", 2, 3))
sketch6.addConstraint(Sketcher.Constraint("Symmetric", 1, 3, 2, 3, -2))
sketch6.addConstraint(Sketcher.Constraint("Symmetric", 0, 3, 3, 3, -2))
sketch6.addConstraint(Sketcher.Constraint("Vertical", 0, 3, 1, 3))
sketch6.addConstraint(Sketcher.Constraint("Diameter", 0, 3.3))
sketch6.addConstraint(Sketcher.Constraint("DistanceX", 0, 3, -1, 1, 45.0))
sketch6.addConstraint(Sketcher.Constraint("DistanceY", 1, 3, 0, 3, 42.0))
sketch6.addConstraint(Sketcher.Constraint("DistanceY", -1, 1, 0, 3, 12.5))
sketch6.setExpression("Constraints[6]", "Params.sketch6_diameter")
pocket4 = body.newObject("PartDesign::Pocket", "Pocket003")
pocket4.Profile = sketch6
pocket4.setExpression("Length", "Params.pocket4_length")
doc.recompute()

fillet = body.newObject("PartDesign::Fillet", "Fillet")
fillet.Base = (pocket4, edges_at(pocket4, [
    (90, 67.5, 1.75),
    (-90, 67.5, 1.75),
    (-90, -67.5, 1.75),
    (90, -67.5, 1.75),
]))
fillet.setExpression("Radius", "Params.fillet_radius")

sketch7 = body.newObject("Sketcher::SketchObject", "Sketch006")
sketch7.AttachmentSupport = (doc.getObject("XY_Plane"), [""])
sketch7.MapMode = "FlatFace"
sketch7.AttachmentOffset = App.Placement(App.Vector(0, 0, 3.5), App.Rotation())
sketch7.addGeometry(Part.LineSegment(App.Vector(74, 10, 0), App.Vector(90, 10, 0)), False)
sketch7.addGeometry(Part.LineSegment(App.Vector(90, 10, 0), App.Vector(90, 48, 0)), False)
sketch7.addGeometry(Part.LineSegment(App.Vector(90, 48, 0), App.Vector(74, 48, 0)), False)
sketch7.addGeometry(Part.LineSegment(App.Vector(74, 48, 0), App.Vector(74, 10, 0)), False)
sketch7.addConstraint(Sketcher.Constraint("Coincident", 0, 2, 1, 1))
sketch7.addConstraint(Sketcher.Constraint("Coincident", 1, 2, 2, 1))
sketch7.addConstraint(Sketcher.Constraint("Coincident", 2, 2, 3, 1))
sketch7.addConstraint(Sketcher.Constraint("Coincident", 3, 2, 0, 1))
sketch7.addConstraint(Sketcher.Constraint("Horizontal", 0))
sketch7.addConstraint(Sketcher.Constraint("Vertical", 1))
sketch7.addConstraint(Sketcher.Constraint("Horizontal", 2))
sketch7.addConstraint(Sketcher.Constraint("Vertical", 3))
sketch7.addConstraint(Sketcher.Constraint("DistanceY", 1, 1, 1, 2, 38.0))
sketch7.addConstraint(Sketcher.Constraint("DistanceX", 0, 1, 0, 2, 16.5))
sketch7.addConstraint(Sketcher.Constraint("DistanceX", -1, 1, 0, 2, 90.0))
sketch7.addConstraint(Sketcher.Constraint("DistanceY", -1, 1, 0, 2, 9.5))
sketch7.setExpression("Constraints[8]", "Params.sketch7_height")
sketch7.setExpression("Constraints[9]", "Params.sketch7_width")
pocket5 = body.newObject("PartDesign::Pocket", "Pocket004")
pocket5.Profile = sketch7
pocket5.Type = "UpToFirst"
doc.recompute()

fillet2 = body.newObject("PartDesign::Fillet", "Fillet001")
fillet2.Base = (pocket5, edges_at(pocket5, [(90, 47.5, 1.75), (90, 9.5, 1.75)]))
fillet2.setExpression("Radius", "Params.fillet2_radius")

doc.recompute()
